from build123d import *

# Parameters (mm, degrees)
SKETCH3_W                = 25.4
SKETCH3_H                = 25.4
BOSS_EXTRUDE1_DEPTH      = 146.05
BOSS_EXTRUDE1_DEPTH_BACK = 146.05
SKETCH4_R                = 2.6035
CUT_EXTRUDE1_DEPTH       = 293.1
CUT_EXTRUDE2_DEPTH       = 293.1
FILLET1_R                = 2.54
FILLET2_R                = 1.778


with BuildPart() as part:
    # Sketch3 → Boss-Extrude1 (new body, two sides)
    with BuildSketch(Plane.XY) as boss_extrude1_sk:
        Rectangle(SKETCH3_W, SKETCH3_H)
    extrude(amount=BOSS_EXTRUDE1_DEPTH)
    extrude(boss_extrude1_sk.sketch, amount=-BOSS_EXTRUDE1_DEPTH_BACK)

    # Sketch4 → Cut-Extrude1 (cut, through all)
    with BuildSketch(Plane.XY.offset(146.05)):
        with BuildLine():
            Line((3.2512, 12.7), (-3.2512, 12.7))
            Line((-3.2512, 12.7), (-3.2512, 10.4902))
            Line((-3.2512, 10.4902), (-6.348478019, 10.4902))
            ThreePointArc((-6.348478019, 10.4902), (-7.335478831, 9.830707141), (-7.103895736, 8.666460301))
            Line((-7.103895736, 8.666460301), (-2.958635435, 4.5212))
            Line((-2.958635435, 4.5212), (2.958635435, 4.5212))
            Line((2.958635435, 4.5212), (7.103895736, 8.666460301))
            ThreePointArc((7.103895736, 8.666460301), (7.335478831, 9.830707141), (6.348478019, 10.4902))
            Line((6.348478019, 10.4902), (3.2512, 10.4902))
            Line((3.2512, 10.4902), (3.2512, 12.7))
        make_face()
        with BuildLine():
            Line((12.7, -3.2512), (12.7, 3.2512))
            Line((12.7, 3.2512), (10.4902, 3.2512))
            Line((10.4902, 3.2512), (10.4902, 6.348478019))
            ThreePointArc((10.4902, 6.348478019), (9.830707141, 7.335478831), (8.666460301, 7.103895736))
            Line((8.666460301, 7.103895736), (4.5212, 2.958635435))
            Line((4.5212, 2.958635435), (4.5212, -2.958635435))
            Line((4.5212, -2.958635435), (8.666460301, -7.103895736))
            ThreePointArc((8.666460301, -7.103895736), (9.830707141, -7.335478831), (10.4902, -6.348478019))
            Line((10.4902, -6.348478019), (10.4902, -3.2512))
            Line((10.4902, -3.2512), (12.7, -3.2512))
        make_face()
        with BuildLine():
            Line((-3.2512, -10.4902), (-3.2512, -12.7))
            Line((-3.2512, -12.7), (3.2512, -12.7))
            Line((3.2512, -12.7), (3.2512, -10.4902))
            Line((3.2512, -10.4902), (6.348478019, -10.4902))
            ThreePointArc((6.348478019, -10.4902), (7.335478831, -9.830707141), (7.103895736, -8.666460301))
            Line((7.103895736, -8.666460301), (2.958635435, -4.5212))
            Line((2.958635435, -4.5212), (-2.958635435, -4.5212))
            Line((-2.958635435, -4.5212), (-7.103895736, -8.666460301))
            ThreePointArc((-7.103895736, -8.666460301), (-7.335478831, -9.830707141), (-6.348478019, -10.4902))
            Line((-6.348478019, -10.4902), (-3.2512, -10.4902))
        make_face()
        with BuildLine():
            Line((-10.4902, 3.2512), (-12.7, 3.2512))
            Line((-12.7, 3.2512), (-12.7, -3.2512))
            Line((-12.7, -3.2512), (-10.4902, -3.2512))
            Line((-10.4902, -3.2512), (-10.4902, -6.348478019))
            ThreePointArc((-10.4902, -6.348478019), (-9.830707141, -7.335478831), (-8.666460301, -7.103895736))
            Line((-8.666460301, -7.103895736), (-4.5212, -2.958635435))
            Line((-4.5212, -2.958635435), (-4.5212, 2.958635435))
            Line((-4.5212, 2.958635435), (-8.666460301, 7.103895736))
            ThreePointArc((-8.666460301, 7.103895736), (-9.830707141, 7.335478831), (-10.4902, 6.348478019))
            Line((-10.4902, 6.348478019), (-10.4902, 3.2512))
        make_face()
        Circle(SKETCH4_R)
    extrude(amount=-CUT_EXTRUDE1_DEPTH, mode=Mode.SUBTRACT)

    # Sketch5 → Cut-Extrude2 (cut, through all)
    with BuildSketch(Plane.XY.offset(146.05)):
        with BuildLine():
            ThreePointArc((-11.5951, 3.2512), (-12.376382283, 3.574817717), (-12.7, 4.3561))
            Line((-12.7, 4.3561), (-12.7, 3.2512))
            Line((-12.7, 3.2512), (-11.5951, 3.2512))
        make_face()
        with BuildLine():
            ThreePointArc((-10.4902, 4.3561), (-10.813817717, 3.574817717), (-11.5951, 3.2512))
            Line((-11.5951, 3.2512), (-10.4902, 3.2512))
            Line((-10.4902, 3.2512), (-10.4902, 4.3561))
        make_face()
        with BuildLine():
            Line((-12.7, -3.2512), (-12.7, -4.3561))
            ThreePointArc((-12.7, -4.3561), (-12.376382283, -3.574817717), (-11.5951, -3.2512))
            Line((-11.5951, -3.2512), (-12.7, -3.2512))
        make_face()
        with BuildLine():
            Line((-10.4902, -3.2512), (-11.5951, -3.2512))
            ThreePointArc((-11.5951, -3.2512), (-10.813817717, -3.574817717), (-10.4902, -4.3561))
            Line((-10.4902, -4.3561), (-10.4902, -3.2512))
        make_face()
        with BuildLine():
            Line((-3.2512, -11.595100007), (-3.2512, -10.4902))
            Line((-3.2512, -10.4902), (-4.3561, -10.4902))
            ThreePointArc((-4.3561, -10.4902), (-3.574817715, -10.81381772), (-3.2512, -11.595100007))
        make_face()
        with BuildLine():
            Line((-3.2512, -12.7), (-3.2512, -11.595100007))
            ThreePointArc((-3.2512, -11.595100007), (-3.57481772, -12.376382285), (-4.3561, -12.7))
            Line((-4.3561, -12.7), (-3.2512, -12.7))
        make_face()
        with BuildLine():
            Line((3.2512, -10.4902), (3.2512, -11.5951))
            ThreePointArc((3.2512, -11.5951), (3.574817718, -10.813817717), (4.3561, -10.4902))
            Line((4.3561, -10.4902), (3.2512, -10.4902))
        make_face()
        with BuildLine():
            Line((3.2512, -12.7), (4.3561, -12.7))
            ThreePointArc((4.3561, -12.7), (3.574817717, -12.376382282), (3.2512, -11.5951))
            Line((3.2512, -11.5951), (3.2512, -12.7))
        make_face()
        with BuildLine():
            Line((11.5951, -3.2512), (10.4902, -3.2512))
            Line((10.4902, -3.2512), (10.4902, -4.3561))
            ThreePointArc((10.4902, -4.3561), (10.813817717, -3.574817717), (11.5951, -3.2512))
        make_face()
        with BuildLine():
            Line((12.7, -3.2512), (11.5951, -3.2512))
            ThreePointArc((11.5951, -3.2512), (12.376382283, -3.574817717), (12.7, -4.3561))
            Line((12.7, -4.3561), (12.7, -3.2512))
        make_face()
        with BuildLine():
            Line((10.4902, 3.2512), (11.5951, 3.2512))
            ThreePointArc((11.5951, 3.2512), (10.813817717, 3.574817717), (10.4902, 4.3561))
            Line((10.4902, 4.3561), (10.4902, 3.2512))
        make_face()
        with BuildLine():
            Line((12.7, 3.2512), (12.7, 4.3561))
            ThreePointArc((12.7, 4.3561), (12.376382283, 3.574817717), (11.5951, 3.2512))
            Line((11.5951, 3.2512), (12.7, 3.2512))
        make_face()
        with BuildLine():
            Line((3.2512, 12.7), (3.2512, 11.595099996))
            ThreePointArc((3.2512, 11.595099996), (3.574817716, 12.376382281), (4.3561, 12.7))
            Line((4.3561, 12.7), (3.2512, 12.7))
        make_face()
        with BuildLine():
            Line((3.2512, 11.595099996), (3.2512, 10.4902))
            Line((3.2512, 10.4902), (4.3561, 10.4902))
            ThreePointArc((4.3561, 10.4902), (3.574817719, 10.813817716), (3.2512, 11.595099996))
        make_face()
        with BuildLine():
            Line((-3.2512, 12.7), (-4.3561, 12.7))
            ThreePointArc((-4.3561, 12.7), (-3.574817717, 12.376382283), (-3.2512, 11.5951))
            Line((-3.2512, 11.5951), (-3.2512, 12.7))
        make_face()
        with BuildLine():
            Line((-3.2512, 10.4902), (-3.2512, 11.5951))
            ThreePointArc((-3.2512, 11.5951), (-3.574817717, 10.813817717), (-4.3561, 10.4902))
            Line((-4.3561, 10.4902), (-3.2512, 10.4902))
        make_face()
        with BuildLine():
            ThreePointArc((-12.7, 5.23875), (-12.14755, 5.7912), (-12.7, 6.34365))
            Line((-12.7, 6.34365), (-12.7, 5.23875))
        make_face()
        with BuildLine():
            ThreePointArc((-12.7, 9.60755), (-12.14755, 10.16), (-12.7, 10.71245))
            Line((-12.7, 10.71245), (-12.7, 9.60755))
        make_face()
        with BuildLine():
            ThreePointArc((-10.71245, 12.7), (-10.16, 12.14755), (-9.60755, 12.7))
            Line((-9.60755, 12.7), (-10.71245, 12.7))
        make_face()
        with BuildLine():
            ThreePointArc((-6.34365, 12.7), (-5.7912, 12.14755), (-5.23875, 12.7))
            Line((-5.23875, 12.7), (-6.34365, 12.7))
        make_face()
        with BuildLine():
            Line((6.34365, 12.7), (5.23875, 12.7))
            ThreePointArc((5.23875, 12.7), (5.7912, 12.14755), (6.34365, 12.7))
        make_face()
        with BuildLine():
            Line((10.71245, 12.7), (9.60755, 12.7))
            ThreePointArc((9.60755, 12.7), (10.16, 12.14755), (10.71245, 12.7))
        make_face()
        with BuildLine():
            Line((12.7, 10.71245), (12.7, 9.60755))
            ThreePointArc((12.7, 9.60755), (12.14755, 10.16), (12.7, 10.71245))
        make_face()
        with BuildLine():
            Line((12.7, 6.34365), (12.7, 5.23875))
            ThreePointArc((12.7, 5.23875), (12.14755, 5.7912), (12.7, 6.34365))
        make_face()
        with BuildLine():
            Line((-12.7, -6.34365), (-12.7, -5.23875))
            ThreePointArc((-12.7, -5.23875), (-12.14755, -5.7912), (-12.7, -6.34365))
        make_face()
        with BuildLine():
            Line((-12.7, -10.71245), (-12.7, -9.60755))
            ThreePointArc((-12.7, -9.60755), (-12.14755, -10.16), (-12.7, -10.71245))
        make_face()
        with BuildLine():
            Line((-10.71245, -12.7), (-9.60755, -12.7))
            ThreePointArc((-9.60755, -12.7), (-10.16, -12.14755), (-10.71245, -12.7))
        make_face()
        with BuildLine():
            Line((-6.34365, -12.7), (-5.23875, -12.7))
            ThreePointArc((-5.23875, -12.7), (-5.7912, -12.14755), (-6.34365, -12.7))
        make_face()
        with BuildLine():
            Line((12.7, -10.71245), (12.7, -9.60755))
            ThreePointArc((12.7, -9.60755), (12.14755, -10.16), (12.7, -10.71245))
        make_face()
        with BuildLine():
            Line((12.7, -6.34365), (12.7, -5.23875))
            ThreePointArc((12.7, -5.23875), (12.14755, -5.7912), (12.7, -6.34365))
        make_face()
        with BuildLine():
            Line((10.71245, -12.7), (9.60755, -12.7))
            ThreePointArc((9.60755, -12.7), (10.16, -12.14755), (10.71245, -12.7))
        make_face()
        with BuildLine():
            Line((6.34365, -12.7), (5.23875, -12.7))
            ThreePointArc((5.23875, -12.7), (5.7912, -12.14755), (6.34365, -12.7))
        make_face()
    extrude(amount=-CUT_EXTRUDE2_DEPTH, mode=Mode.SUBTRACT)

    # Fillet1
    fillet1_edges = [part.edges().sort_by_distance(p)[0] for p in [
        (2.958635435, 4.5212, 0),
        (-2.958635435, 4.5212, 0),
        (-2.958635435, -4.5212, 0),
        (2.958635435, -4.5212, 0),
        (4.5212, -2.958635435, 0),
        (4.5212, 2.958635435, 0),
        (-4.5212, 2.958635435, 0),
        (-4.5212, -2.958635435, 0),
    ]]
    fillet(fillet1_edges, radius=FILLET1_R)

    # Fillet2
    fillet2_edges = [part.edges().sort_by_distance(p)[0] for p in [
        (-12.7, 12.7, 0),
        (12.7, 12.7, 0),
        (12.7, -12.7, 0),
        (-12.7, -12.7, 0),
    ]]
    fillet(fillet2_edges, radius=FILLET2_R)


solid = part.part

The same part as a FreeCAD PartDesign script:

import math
import FreeCAD as App
import Part
import Sketcher

V = App.Vector
Q = App.Units.Quantity


def edges_at(feature, points):
    """Names of the edges that pass closest to the given points."""
    edges = feature.Shape.Edges
    near = lambda p: min(range(len(edges)), key=lambda i: edges[i].distToShape(Part.Vertex(*p))[0])
    return sorted({f"Edge{near(p) + 1}" for p in points})

doc = App.newDocument("Part")
body = doc.addObject("PartDesign::Body", "Body")

# Sketch on XY plane
sketch1 = body.newObject("Sketcher::SketchObject", "Sketch")
sketch1.AttachmentSupport = (doc.getObject("XY_Plane"), [""])
sketch1.MapMode = "FlatFace"
sketch1.addGeometry([
    Part.LineSegment(V(-13, 13, 0), V(-13, -13, 0)),
    Part.LineSegment(V(-13, -13, 0), V(13, -13, 0)),
    Part.LineSegment(V(13, -13, 0), V(13, 13, 0)),
    Part.LineSegment(V(13, 13, 0), V(-13, 13, 0)),
], False)
sketch1.addConstraint([
    Sketcher.Constraint("Coincident", 0, 2, 1, 1),
    Sketcher.Constraint("Coincident", 1, 2, 2, 1),
    Sketcher.Constraint("Coincident", 2, 2, 3, 1),
    Sketcher.Constraint("Coincident", 3, 2, 0, 1),
    Sketcher.Constraint("Vertical", 0),
    Sketcher.Constraint("Horizontal", 1),
    Sketcher.Constraint("Vertical", 2),
    Sketcher.Constraint("Horizontal", 3),
    Sketcher.Constraint("Symmetric", 0, 2, 2, 2, -1, 1),
    Sketcher.Constraint("Equal", 3, 0),
    Sketcher.Constraint("DistanceX", 1, 1, 1, 2, Q("1 in")),
])
pad1 = body.newObject("PartDesign::Pad", "Pad")
pad1.Profile = sketch1
pad1.Type = "TwoLengths"
pad1.Length = Q("5.75 in")
pad1.Length2 = Q("5.75 in")

# Sketch on XY plane
sketch2 = body.newObject("Sketcher::SketchObject", "Sketch001")
sketch2.AttachmentSupport = (doc.getObject("XY_Plane"), [""])
sketch2.MapMode = "FlatFace"
sketch2.AttachmentOffset = App.Placement(V(0, 0, 5.75 * 25.4), App.Rotation())
sketch2.addGeometry([
    Part.LineSegment(V(3.3, 12.7, 0), V(-3.3, 12.7, 0)),  # 0
    Part.LineSegment(V(-3.3, 12.7, 0), V(-3.3, 10.5, 0)),  # 1
    Part.LineSegment(V(-3.3, 10.5, 0), V(-6.3, 10.5, 0)),  # 2
    Part.ArcOfCircle(Part.Circle(V(-6.3, 9.4, 0), V(0, 0, 1), 1.1), math.radians(90), math.radians(225)),  # 3
    Part.LineSegment(V(-7.1, 8.7, 0), V(-3, 4.5, 0)),  # 4
    Part.LineSegment(V(-3, 4.5, 0), V(3, 4.5, 0)),  # 5
    Part.LineSegment(V(3, 4.5, 0), V(7.1, 8.7, 0)),  # 6
    Part.ArcOfCircle(Part.Circle(V(6.3, 9.4, 0), V(0, 0, 1), 1.1), math.radians(-45), math.radians(90)),  # 7
    Part.LineSegment(V(6.3, 10.5, 0), V(3.3, 10.5, 0)),  # 8
    Part.LineSegment(V(3.3, 10.5, 0), V(3.3, 12.7, 0)),  # 9
    Part.LineSegment(V(12.7, -3.3, 0), V(12.7, 3.3, 0)),  # 10
    Part.LineSegment(V(12.7, 3.3, 0), V(10.5, 3.3, 0)),  # 11
    Part.LineSegment(V(10.5, 3.3, 0), V(10.5, 6.3, 0)),  # 12
    Part.ArcOfCircle(Part.Circle(V(9.4, 6.3, 0), V(0, 0, 1), 1.1), math.radians(0), math.radians(135)),  # 13
    Part.LineSegment(V(8.7, 7.1, 0), V(4.5, 3, 0)),  # 14
    Part.LineSegment(V(4.5, 3, 0), V(4.5, -3, 0)),  # 15
    Part.LineSegment(V(4.5, -3, 0), V(8.7, -7.1, 0)),  # 16
    Part.ArcOfCircle(Part.Circle(V(9.4, -6.3, 0), V(0, 0, 1), 1.1), math.radians(-135), math.radians(0)),  # 17
    Part.LineSegment(V(10.5, -6.3, 0), V(10.5, -3.3, 0)),  # 18
    Part.LineSegment(V(10.5, -3.3, 0), V(12.7, -3.3, 0)),  # 19
    Part.LineSegment(V(-3.3, -10.5, 0), V(-3.3, -12.7, 0)),  # 20
    Part.LineSegment(V(-3.3, -12.7, 0), V(3.3, -12.7, 0)),  # 21
    Part.LineSegment(V(3.3, -12.7, 0), V(3.3, -10.5, 0)),  # 22
    Part.LineSegment(V(3.3, -10.5, 0), V(6.3, -10.5, 0)),  # 23
    Part.ArcOfCircle(Part.Circle(V(6.3, -9.4, 0), V(0, 0, 1), 1.1), math.radians(-90), math.radians(45)),  # 24
    Part.LineSegment(V(7.1, -8.7, 0), V(3, -4.5, 0)),  # 25
    Part.LineSegment(V(3, -4.5, 0), V(-3, -4.5, 0)),  # 26
    Part.LineSegment(V(-3, -4.5, 0), V(-7.1, -8.7, 0)),  # 27
    Part.ArcOfCircle(Part.Circle(V(-6.3, -9.4, 0), V(0, 0, 1), 1.1), math.radians(135), math.radians(270)),  # 28
    Part.LineSegment(V(-6.3, -10.5, 0), V(-3.3, -10.5, 0)),  # 29
    Part.LineSegment(V(-10.5, 3.3, 0), V(-12.7, 3.3, 0)),  # 30
    Part.LineSegment(V(-12.7, 3.3, 0), V(-12.7, -3.3, 0)),  # 31
    Part.LineSegment(V(-12.7, -3.3, 0), V(-10.5, -3.3, 0)),  # 32
    Part.LineSegment(V(-10.5, -3.3, 0), V(-10.5, -6.3, 0)),  # 33
    Part.ArcOfCircle(Part.Circle(V(-9.4, -6.3, 0), V(0, 0, 1), 1.1), math.radians(-180), math.radians(-45)),  # 34
    Part.LineSegment(V(-8.7, -7.1, 0), V(-4.5, -3, 0)),  # 35
    Part.LineSegment(V(-4.5, -3, 0), V(-4.5, 3, 0)),  # 36
    Part.LineSegment(V(-4.5, 3, 0), V(-8.7, 7.1, 0)),  # 37
    Part.ArcOfCircle(Part.Circle(V(-9.4, 6.3, 0), V(0, 0, 1), 1.1), math.radians(45), math.radians(180)),  # 38
    Part.LineSegment(V(-10.5, 6.3, 0), V(-10.5, 3.3, 0)),  # 39
    Part.Circle(V(0, 0, 0), V(0, 0, 1), 2.6),  # 40
], False)
sketch2.addConstraint([
    Sketcher.Constraint("Coincident", 0, 2, 1, 1),
    Sketcher.Constraint("Coincident", 1, 2, 2, 1),
    Sketcher.Constraint("Tangent", 2, 2, 3, 1),
    Sketcher.Constraint("Tangent", 3, 2, 4, 1),
    Sketcher.Constraint("Coincident", 4, 2, 5, 1),
    Sketcher.Constraint("Coincident", 5, 2, 6, 1),
    Sketcher.Constraint("Tangent", 6, 2, 7, 1),
    Sketcher.Constraint("Tangent", 7, 2, 8, 1),
    Sketcher.Constraint("Coincident", 8, 2, 9, 1),
    Sketcher.Constraint("Coincident", 9, 2, 0, 1),
    Sketcher.Constraint("Coincident", 10, 2, 11, 1),
    Sketcher.Constraint("Coincident", 11, 2, 12, 1),
    Sketcher.Constraint("Tangent", 12, 2, 13, 1),
    Sketcher.Constraint("Tangent", 13, 2, 14, 1),
    Sketcher.Constraint("Coincident", 14, 2, 15, 1),
    Sketcher.Constraint("Coincident", 15, 2, 16, 1),
    Sketcher.Constraint("Tangent", 16, 2, 17, 1),
    Sketcher.Constraint("Tangent", 17, 2, 18, 1),
    Sketcher.Constraint("Coincident", 18, 2, 19, 1),
    Sketcher.Constraint("Coincident", 19, 2, 10, 1),
    Sketcher.Constraint("Coincident", 20, 2, 21, 1),
    Sketcher.Constraint("Coincident", 21, 2, 22, 1),
    Sketcher.Constraint("Coincident", 22, 2, 23, 1),
    Sketcher.Constraint("Tangent", 23, 2, 24, 1),
    Sketcher.Constraint("Tangent", 24, 2, 25, 1),
    Sketcher.Constraint("Coincident", 25, 2, 26, 1),
    Sketcher.Constraint("Coincident", 26, 2, 27, 1),
    Sketcher.Constraint("Tangent", 27, 2, 28, 1),
    Sketcher.Constraint("Tangent", 28, 2, 29, 1),
    Sketcher.Constraint("Coincident", 29, 2, 20, 1),
    Sketcher.Constraint("Coincident", 30, 2, 31, 1),
    Sketcher.Constraint("Coincident", 31, 2, 32, 1),
    Sketcher.Constraint("Coincident", 32, 2, 33, 1),
    Sketcher.Constraint("Tangent", 33, 2, 34, 1),
    Sketcher.Constraint("Tangent", 34, 2, 35, 1),
    Sketcher.Constraint("Coincident", 35, 2, 36, 1),
    Sketcher.Constraint("Coincident", 36, 2, 37, 1),
    Sketcher.Constraint("Tangent", 37, 2, 38, 1),
    Sketcher.Constraint("Tangent", 38, 2, 39, 1),
    Sketcher.Constraint("Coincident", 39, 2, 30, 1),
    Sketcher.Constraint("Horizontal", 0),
    Sketcher.Constraint("Vertical", 1),
    Sketcher.Constraint("Horizontal", 2),
    Sketcher.Constraint("Horizontal", 5),
    Sketcher.Constraint("Horizontal", 8),
    Sketcher.Constraint("Vertical", 9),
    Sketcher.Constraint("Vertical", 10),
    Sketcher.Constraint("Horizontal", 11),
    Sketcher.Constraint("Vertical", 12),
    Sketcher.Constraint("Vertical", 15),
    Sketcher.Constraint("Vertical", 18),
    Sketcher.Constraint("Horizontal", 19),
    Sketcher.Constraint("Vertical", 20),
    Sketcher.Constraint("Horizontal", 21),
    Sketcher.Constraint("Vertical", 22),
    Sketcher.Constraint("Horizontal", 23),
    Sketcher.Constraint("Horizontal", 26),
    Sketcher.Constraint("Horizontal", 29),
    Sketcher.Constraint("Horizontal", 30),
    Sketcher.Constraint("Vertical", 31),
    Sketcher.Constraint("Horizontal", 32),
    Sketcher.Constraint("Vertical", 33),
    Sketcher.Constraint("Vertical", 36),
    Sketcher.Constraint("Vertical", 39),
    Sketcher.Constraint("Coincident", 40, 3, -1, 1),
    Sketcher.Constraint("Equal", 3, 7),
    Sketcher.Constraint("Equal", 7, 13),
    Sketcher.Constraint("Equal", 13, 17),
    Sketcher.Constraint("Equal", 17, 24),
    Sketcher.Constraint("Equal", 24, 28),
    Sketcher.Constraint("Equal", 28, 34),
    Sketcher.Constraint("Equal", 34, 38),
    Sketcher.Constraint("Symmetric", 3, 3, 24, 3, -1, 1),
    Sketcher.Constraint("Symmetric", 7, 3, 28, 3, -1, 1),
    Sketcher.Constraint("Symmetric", 13, 3, 34, 3, -1, 1),
    Sketcher.Constraint("Symmetric", 17, 3, 38, 3, -1, 1),
    Sketcher.Constraint("Symmetric", 9, 2, 20, 2, -1, 1),
    Sketcher.Constraint("Symmetric", 4, 2, 25, 2, -1, 1),
    Sketcher.Constraint("Symmetric", 19, 2, 30, 2, -1, 1),
    Sketcher.Constraint("Symmetric", 14, 2, 35, 2, -1, 1),
    Sketcher.Constraint("Symmetric", 3, 3, 7, 3, -2),
    Sketcher.Constraint("Symmetric", 17, 3, 34, 3, -2),
    Sketcher.Constraint("Perpendicular", 4, 6),
    Sketcher.Constraint("Parallel", 6, 14),
    Sketcher.Constraint("Perpendicular", 14, 16),
    Sketcher.Constraint("Perpendicular", 25, 27),
    Sketcher.Constraint("Perpendicular", 35, 37),
    Sketcher.Constraint("Horizontal", 3, 2, 6, 2),
    Sketcher.Constraint("Horizontal", 11, 2, 30, 2),
    Sketcher.Constraint("Horizontal", 19, 2, 31, 2),
    Sketcher.Constraint("Vertical", 1, 2, 20, 2),
    Sketcher.Constraint("Vertical", 9, 2, 21, 2),
    Sketcher.Constraint("Equal", 32, 1),
    Sketcher.Constraint("Equal", 21, 10),
    Sketcher.Constraint("Equal", 29, 12),
    Sketcher.Constraint("Equal", 26, 15),
    Sketcher.Constraint("Diameter", 40, Q("0.205 in")),
    Sketcher.Constraint("DistanceY", -1, 1, 0, 2, Q("0.5 in")),
    Sketcher.Constraint("DistanceX", -1, 1, 10, 2, Q("0.5 in")),
    Sketcher.Constraint("DistanceX", 0, 2, 0, 1, Q("0.256 in")),
    Sketcher.Constraint("DistanceX", 11, 2, 11, 1, Q("0.087 in")),
    Sketcher.Constraint("DistanceY", 10, 2, 5, 2, Q("0.05 in")),
    Sketcher.Constraint("Radius", 3, Q("1.068322 mm")),
    Sketcher.Constraint("DistanceX", 7, 3, 13, 3, Q("0.121 in")),
])
pocket1 = body.newObject("PartDesign::Pocket", "Pocket")
pocket1.Profile = sketch2
pocket1.Type = "ThroughAll"

# Sketch on XY plane
sketch3 = body.newObject("Sketcher::SketchObject", "Sketch002")
sketch3.AttachmentSupport = (doc.getObject("XY_Plane"), [""])
sketch3.MapMode = "FlatFace"
sketch3.AttachmentOffset = App.Placement(V(0, 0, 5.75 * 25.4), App.Rotation())
sketch3.addGeometry([
    Part.ArcOfCircle(Part.Circle(V(-11.6, 4.4, 0), V(0, 0, 1), 1.1), math.radians(180), math.radians(270)),  # 0
    Part.LineSegment(V(-12.7, 4.4, 0), V(-12.7, 3.3, 0)),  # 1
    Part.LineSegment(V(-12.7, 3.3, 0), V(-11.6, 3.3, 0)),  # 2
    Part.ArcOfCircle(Part.Circle(V(-11.6, 4.4, 0), V(0, 0, 1), 1.1), math.radians(-90), math.radians(0)),  # 3
    Part.LineSegment(V(-11.6, 3.3, 0), V(-10.5, 3.3, 0)),  # 4
    Part.LineSegment(V(-10.5, 3.3, 0), V(-10.5, 4.4, 0)),  # 5
    Part.LineSegment(V(-12.7, -3.3, 0), V(-12.7, -4.4, 0)),  # 6
    Part.ArcOfCircle(Part.Circle(V(-11.6, -4.4, 0), V(0, 0, 1), 1.1), math.radians(90), math.radians(180)),  # 7
    Part.LineSegment(V(-11.6, -3.3, 0), V(-12.7, -3.3, 0)),  # 8
    Part.LineSegment(V(-10.5, -3.3, 0), V(-11.6, -3.3, 0)),  # 9
    Part.ArcOfCircle(Part.Circle(V(-11.6, -4.4, 0), V(0, 0, 1), 1.1), math.radians(0), math.radians(90)),  # 10
    Part.LineSegment(V(-10.5, -4.4, 0), V(-10.5, -3.3, 0)),  # 11
    Part.LineSegment(V(-3.3, -11.6, 0), V(-3.3, -10.5, 0)),  # 12
    Part.LineSegment(V(-3.3, -10.5, 0), V(-4.4, -10.5, 0)),  # 13
    Part.ArcOfCircle(Part.Circle(V(-4.4, -11.6, 0), V(0, 0, 1), 1.1), math.radians(0), math.radians(90)),  # 14
    Part.LineSegment(V(-3.3, -12.7, 0), V(-3.3, -11.6, 0)),  # 15
    Part.ArcOfCircle(Part.Circle(V(-4.4, -11.6, 0), V(0, 0, 1), 1.1), math.radians(-90), math.radians(0)),  # 16
    Part.LineSegment(V(-4.4, -12.7, 0), V(-3.3, -12.7, 0)),  # 17
    Part.LineSegment(V(3.3, -10.5, 0), V(3.3, -11.6, 0)),  # 18
    Part.ArcOfCircle(Part.Circle(V(4.4, -11.6, 0), V(0, 0, 1), 1.1), math.radians(90), math.radians(180)),  # 19
    Part.LineSegment(V(4.4, -10.5, 0), V(3.3, -10.5, 0)),  # 20
    Part.LineSegment(V(3.3, -12.7, 0), V(4.4, -12.7, 0)),  # 21
    Part.ArcOfCircle(Part.Circle(V(4.4, -11.6, 0), V(0, 0, 1), 1.1), math.radians(180), math.radians(270)),  # 22
    Part.LineSegment(V(3.3, -11.6, 0), V(3.3, -12.7, 0)),  # 23
    Part.LineSegment(V(11.6, -3.3, 0), V(10.5, -3.3, 0)),  # 24
    Part.LineSegment(V(10.5, -3.3, 0), V(10.5, -4.4, 0)),  # 25
    Part.ArcOfCircle(Part.Circle(V(11.6, -4.4, 0), V(0, 0, 1), 1.1), math.radians(90), math.radians(180)),  # 26
    Part.LineSegment(V(12.7, -3.3, 0), V(11.6, -3.3, 0)),  # 27
    Part.ArcOfCircle(Part.Circle(V(11.6, -4.4, 0), V(0, 0, 1), 1.1), math.radians(0), math.radians(90)),  # 28
    Part.LineSegment(V(12.7, -4.4, 0), V(12.7, -3.3, 0)),  # 29
    Part.LineSegment(V(10.5, 3.3, 0), V(11.6, 3.3, 0)),  # 30
    Part.ArcOfCircle(Part.Circle(V(11.6, 4.4, 0), V(0, 0, 1), 1.1), math.radians(180), math.radians(270)),  # 31
    Part.LineSegment(V(10.5, 4.4, 0), V(10.5, 3.3, 0)),  # 32
    Part.LineSegment(V(12.7, 3.3, 0), V(12.7, 4.4, 0)),  # 33
    Part.ArcOfCircle(Part.Circle(V(11.6, 4.4, 0), V(0, 0, 1), 1.1), math.radians(-90), math.radians(0)),  # 34
    Part.LineSegment(V(11.6, 3.3, 0), V(12.7, 3.3, 0)),  # 35
    Part.LineSegment(V(3.3, 12.7, 0), V(3.3, 11.6, 0)),  # 36
    Part.ArcOfCircle(Part.Circle(V(4.4, 11.6, 0), V(0, 0, 1), 1.1), math.radians(90), math.radians(180)),  # 37
    Part.LineSegment(V(4.4, 12.7, 0), V(3.3, 12.7, 0)),  # 38
    Part.LineSegment(V(3.3, 11.6, 0), V(3.3, 10.5, 0)),  # 39
    Part.LineSegment(V(3.3, 10.5, 0), V(4.4, 10.5, 0)),  # 40
    Part.ArcOfCircle(Part.Circle(V(4.4, 11.6, 0), V(0, 0, 1), 1.1), math.radians(-180), math.radians(-90)),  # 41
    Part.LineSegment(V(-3.3, 12.7, 0), V(-4.4, 12.7, 0)),  # 42
    Part.ArcOfCircle(Part.Circle(V(-4.4, 11.6, 0), V(0, 0, 1), 1.1), math.radians(0), math.radians(90)),  # 43
    Part.LineSegment(V(-3.3, 11.6, 0), V(-3.3, 12.7, 0)),  # 44
    Part.LineSegment(V(-3.3, 10.5, 0), V(-3.3, 11.6, 0)),  # 45
    Part.ArcOfCircle(Part.Circle(V(-4.4, 11.6, 0), V(0, 0, 1), 1.1), math.radians(-90), math.radians(0)),  # 46
    Part.LineSegment(V(-4.4, 10.5, 0), V(-3.3, 10.5, 0)),  # 47
    Part.ArcOfCircle(Part.Circle(V(-12.7, 5.8, 0), V(0, 0, 1), 0.6), math.radians(-90), math.radians(90)),  # 48
    Part.LineSegment(V(-12.7, 6.3, 0), V(-12.7, 5.2, 0)),  # 49
    Part.ArcOfCircle(Part.Circle(V(-12.7, 10.2, 0), V(0, 0, 1), 0.6), math.radians(-90), math.radians(90)),  # 50
    Part.LineSegment(V(-12.7, 10.7, 0), V(-12.7, 9.6, 0)),  # 51
    Part.ArcOfCircle(Part.Circle(V(-10.2, 12.7, 0), V(0, 0, 1), 0.6), math.radians(180), math.radians(360)),  # 52
    Part.LineSegment(V(-9.6, 12.7, 0), V(-10.7, 12.7, 0)),  # 53
    Part.ArcOfCircle(Part.Circle(V(-5.8, 12.7, 0), V(0, 0, 1), 0.6), math.radians(180), math.radians(360)),  # 54
    Part.LineSegment(V(-5.2, 12.7, 0), V(-6.3, 12.7, 0)),  # 55
    Part.LineSegment(V(6.3, 12.7, 0), V(5.2, 12.7, 0)),  # 56
    Part.ArcOfCircle(Part.Circle(V(5.8, 12.7, 0), V(0, 0, 1), 0.6), math.radians(180), math.radians(360)),  # 57
    Part.LineSegment(V(10.7, 12.7, 0), V(9.6, 12.7, 0)),  # 58
    Part.ArcOfCircle(Part.Circle(V(10.2, 12.7, 0), V(0, 0, 1), 0.6), math.radians(180), math.radians(360)),  # 59
    Part.LineSegment(V(12.7, 9.6, 0), V(12.7, 10.7, 0)),  # 60
    Part.ArcOfCircle(Part.Circle(V(12.7, 10.2, 0), V(0, 0, 1), 0.6), math.radians(90), math.radians(270)),  # 61
    Part.LineSegment(V(12.7, 5.2, 0), V(12.7, 6.3, 0)),  # 62
    Part.ArcOfCircle(Part.Circle(V(12.7, 5.8, 0), V(0, 0, 1), 0.6), math.radians(90), math.radians(270)),  # 63
    Part.LineSegment(V(-12.7, -5.2, 0), V(-12.7, -6.3, 0)),  # 64
    Part.ArcOfCircle(Part.Circle(V(-12.7, -5.8, 0), V(0, 0, 1), 0.6), math.radians(-90), math.radians(90)),  # 65
    Part.LineSegment(V(-12.7, -9.6, 0), V(-12.7, -10.7, 0)),  # 66
    Part.ArcOfCircle(Part.Circle(V(-12.7, -10.2, 0), V(0, 0, 1), 0.6), math.radians(-90), math.radians(90)),  # 67
    Part.LineSegment(V(-10.7, -12.7, 0), V(-9.6, -12.7, 0)),  # 68
    Part.ArcOfCircle(Part.Circle(V(-10.2, -12.7, 0), V(0, 0, 1), 0.6), math.radians(0), math.radians(180)),  # 69
    Part.LineSegment(V(-6.3, -12.7, 0), V(-5.2, -12.7, 0)),  # 70
    Part.ArcOfCircle(Part.Circle(V(-5.8, -12.7, 0), V(0, 0, 1), 0.6), math.radians(0), math.radians(180)),  # 71
    Part.LineSegment(V(12.7, -10.7, 0), V(12.7, -9.6, 0)),  # 72
    Part.ArcOfCircle(Part.Circle(V(12.7, -10.2, 0), V(0, 0, 1), 0.6), math.radians(90), math.radians(270)),  # 73
    Part.LineSegment(V(12.7, -6.3, 0), V(12.7, -5.2, 0)),  # 74
    Part.ArcOfCircle(Part.Circle(V(12.7, -5.8, 0), V(0, 0, 1), 0.6), math.radians(90), math.radians(270)),  # 75
    Part.LineSegment(V(9.6, -12.7, 0), V(10.7, -12.7, 0)),  # 76
    Part.ArcOfCircle(Part.Circle(V(10.2, -12.7, 0), V(0, 0, 1), 0.6), math.radians(0), math.radians(180)),  # 77
    Part.LineSegment(V(5.2, -12.7, 0), V(6.3, -12.7, 0)),  # 78
    Part.ArcOfCircle(Part.Circle(V(5.8, -12.7, 0), V(0, 0, 1), 0.6), math.radians(0), math.radians(180)),  # 79
], False)
sketch3.addConstraint([
    Sketcher.Constraint("Tangent", 0, 1, 1, 1),
    Sketcher.Constraint("Coincident", 1, 2, 2, 1),
    Sketcher.Constraint("Tangent", 2, 2, 0, 2),
    Sketcher.Constraint("Tangent", 3, 1, 4, 1),
    Sketcher.Constraint("Coincident", 4, 2, 5, 1),
    Sketcher.Constraint("Tangent", 5, 2, 3, 2),
    Sketcher.Constraint("Tangent", 6, 2, 7, 2),
    Sketcher.Constraint("Tangent", 7, 1, 8, 1),
    Sketcher.Constraint("Coincident", 8, 2, 6, 1),
    Sketcher.Constraint("Tangent", 9, 2, 10, 2),
    Sketcher.Constraint("Tangent", 10, 1, 11, 1),
    Sketcher.Constraint("Coincident", 11, 2, 9, 1),
    Sketcher.Constraint("Coincident", 12, 2, 13, 1),
    Sketcher.Constraint("Tangent", 13, 2, 14, 2),
    Sketcher.Constraint("Tangent", 14, 1, 12, 1),
    Sketcher.Constraint("Tangent", 15, 2, 16, 2),
    Sketcher.Constraint("Tangent", 16, 1, 17, 1),
    Sketcher.Constraint("Coincident", 17, 2, 15, 1),
    Sketcher.Constraint("Tangent", 18, 2, 19, 2),
    Sketcher.Constraint("Tangent", 19, 1, 20, 1),
    Sketcher.Constraint("Coincident", 20, 2, 18, 1),
    Sketcher.Constraint("Tangent", 21, 2, 22, 2),
    Sketcher.Constraint("Tangent", 22, 1, 23, 1),
    Sketcher.Constraint("Coincident", 23, 2, 21, 1),
    Sketcher.Constraint("Coincident", 24, 2, 25, 1),
    Sketcher.Constraint("Tangent", 25, 2, 26, 2),
    Sketcher.Constraint("Tangent", 26, 1, 24, 1),
    Sketcher.Constraint("Tangent", 27, 2, 28, 2),
    Sketcher.Constraint("Tangent", 28, 1, 29, 1),
    Sketcher.Constraint("Coincident", 29, 2, 27, 1),
    Sketcher.Constraint("Tangent", 30, 2, 31, 2),
    Sketcher.Constraint("Tangent", 31, 1, 32, 1),
    Sketcher.Constraint("Coincident", 32, 2, 30, 1),
    Sketcher.Constraint("Tangent", 33, 2, 34, 2),
    Sketcher.Constraint("Tangent", 34, 1, 35, 1),
    Sketcher.Constraint("Coincident", 35, 2, 33, 1),
    Sketcher.Constraint("Tangent", 36, 2, 37, 2),
    Sketcher.Constraint("Tangent", 37, 1, 38, 1),
    Sketcher.Constraint("Coincident", 38, 2, 36, 1),
    Sketcher.Constraint("Coincident", 39, 2, 40, 1),
    Sketcher.Constraint("Tangent", 40, 2, 41, 2),
    Sketcher.Constraint("Tangent", 41, 1, 39, 1),
    Sketcher.Constraint("Tangent", 42, 2, 43, 2),
    Sketcher.Constraint("Tangent", 43, 1, 44, 1),
    Sketcher.Constraint("Coincident", 44, 2, 42, 1),
    Sketcher.Constraint("Tangent", 45, 2, 46, 2),
    Sketcher.Constraint("Tangent", 46, 1, 47, 1),
    Sketcher.Constraint("Coincident", 47, 2, 45, 1),
    Sketcher.Constraint("Coincident", 48, 1, 49, 2),
    Sketcher.Constraint("Coincident", 49, 1, 48, 2),
    Sketcher.Constraint("Coincident", 50, 1, 51, 2),
    Sketcher.Constraint("Coincident", 51, 1, 50, 2),
    Sketcher.Constraint("Coincident", 52, 1, 53, 2),
    Sketcher.Constraint("Coincident", 53, 1, 52, 2),
    Sketcher.Constraint("Coincident", 54, 1, 55, 2),
    Sketcher.Constraint("Coincident", 55, 1, 54, 2),
    Sketcher.Constraint("Coincident", 56, 1, 57, 2),
    Sketcher.Constraint("Coincident", 57, 1, 56, 2),
    Sketcher.Constraint("Coincident", 58, 1, 59, 2),
    Sketcher.Constraint("Coincident", 59, 1, 58, 2),
    Sketcher.Constraint("Coincident", 60, 1, 61, 2),
    Sketcher.Constraint("Coincident", 61, 1, 60, 2),
    Sketcher.Constraint("Coincident", 62, 1, 63, 2),
    Sketcher.Constraint("Coincident", 63, 1, 62, 2),
    Sketcher.Constraint("Coincident", 64, 1, 65, 2),
    Sketcher.Constraint("Coincident", 65, 1, 64, 2),
    Sketcher.Constraint("Coincident", 66, 1, 67, 2),
    Sketcher.Constraint("Coincident", 67, 1, 66, 2),
    Sketcher.Constraint("Coincident", 68, 1, 69, 2),
    Sketcher.Constraint("Coincident", 69, 1, 68, 2),
    Sketcher.Constraint("Coincident", 70, 1, 71, 2),
    Sketcher.Constraint("Coincident", 71, 1, 70, 2),
    Sketcher.Constraint("Coincident", 72, 1, 73, 2),
    Sketcher.Constraint("Coincident", 73, 1, 72, 2),
    Sketcher.Constraint("Coincident", 74, 1, 75, 2),
    Sketcher.Constraint("Coincident", 75, 1, 74, 2),
    Sketcher.Constraint("Coincident", 76, 1, 77, 2),
    Sketcher.Constraint("Coincident", 77, 1, 76, 2),
    Sketcher.Constraint("Coincident", 78, 1, 79, 2),
    Sketcher.Constraint("Coincident", 79, 1, 78, 2),
    Sketcher.Constraint("Vertical", 1),
    Sketcher.Constraint("Horizontal", 2),
    Sketcher.Constraint("Horizontal", 4),
    Sketcher.Constraint("Vertical", 5),
    Sketcher.Constraint("Vertical", 6),
    Sketcher.Constraint("Horizontal", 8),
    Sketcher.Constraint("Horizontal", 9),
    Sketcher.Constraint("Vertical", 11),
    Sketcher.Constraint("Vertical", 12),
    Sketcher.Constraint("Horizontal", 13),
    Sketcher.Constraint("Vertical", 15),
    Sketcher.Constraint("Horizontal", 17),
    Sketcher.Constraint("Vertical", 18),
    Sketcher.Constraint("Horizontal", 20),
    Sketcher.Constraint("Horizontal", 21),
    Sketcher.Constraint("Vertical", 23),
    Sketcher.Constraint("Horizontal", 24),
    Sketcher.Constraint("Vertical", 25),
    Sketcher.Constraint("Horizontal", 27),
    Sketcher.Constraint("Vertical", 29),
    Sketcher.Constraint("Horizontal", 30),
    Sketcher.Constraint("Vertical", 32),
    Sketcher.Constraint("Vertical", 33),
    Sketcher.Constraint("Horizontal", 35),
    Sketcher.Constraint("Vertical", 36),
    Sketcher.Constraint("Horizontal", 38),
    Sketcher.Constraint("Vertical", 39),
    Sketcher.Constraint("Horizontal", 40),
    Sketcher.Constraint("Horizontal", 42),
    Sketcher.Constraint("Vertical", 44),
    Sketcher.Constraint("Vertical", 45),
    Sketcher.Constraint("Horizontal", 47),
    Sketcher.Constraint("Vertical", 49),
    Sketcher.Constraint("Vertical", 51),
    Sketcher.Constraint("Horizontal", 53),
    Sketcher.Constraint("Horizontal", 55),
    Sketcher.Constraint("Horizontal", 56),
    Sketcher.Constraint("Horizontal", 58),
    Sketcher.Constraint("Vertical", 60),
    Sketcher.Constraint("Vertical", 62),
    Sketcher.Constraint("Vertical", 64),
    Sketcher.Constraint("Vertical", 66),
    Sketcher.Constraint("Horizontal", 68),
    Sketcher.Constraint("Horizontal", 70),
    Sketcher.Constraint("Vertical", 72),
    Sketcher.Constraint("Vertical", 74),
    Sketcher.Constraint("Horizontal", 76),
    Sketcher.Constraint("Horizontal", 78),
    Sketcher.Constraint("Coincident", 3, 3, 0, 3),
    Sketcher.Constraint("Coincident", 10, 3, 7, 3),
    Sketcher.Constraint("Coincident", 16, 3, 14, 3),
    Sketcher.Constraint("Coincident", 22, 3, 19, 3),
    Sketcher.Constraint("Coincident", 28, 3, 26, 3),
    Sketcher.Constraint("Coincident", 34, 3, 31, 3),
    Sketcher.Constraint("Coincident", 41, 3, 37, 3),
    Sketcher.Constraint("Coincident", 46, 3, 43, 3),
    Sketcher.Constraint("Equal", 0, 3),
    Sketcher.Constraint("Equal", 3, 7),
    Sketcher.Constraint("Equal", 7, 10),
    Sketcher.Constraint("Equal", 10, 14),
    Sketcher.Constraint("Equal", 14, 16),
    Sketcher.Constraint("Equal", 16, 19),
    Sketcher.Constraint("Equal", 19, 22),
    Sketcher.Constraint("Equal", 22, 26),
    Sketcher.Constraint("Equal", 26, 28),
    Sketcher.Constraint("Equal", 28, 31),
    Sketcher.Constraint("Equal", 31, 34),
    Sketcher.Constraint("Equal", 34, 37),
    Sketcher.Constraint("Equal", 37, 41),
    Sketcher.Constraint("Equal", 41, 43),
    Sketcher.Constraint("Equal", 43, 46),
    Sketcher.Constraint("Equal", 48, 50),
    Sketcher.Constraint("Equal", 50, 52),
    Sketcher.Constraint("Equal", 52, 54),
    Sketcher.Constraint("Equal", 54, 57),
    Sketcher.Constraint("Equal", 57, 59),
    Sketcher.Constraint("Equal", 59, 61),
    Sketcher.Constraint("Equal", 61, 63),
    Sketcher.Constraint("Equal", 63, 65),
    Sketcher.Constraint("Equal", 65, 67),
    Sketcher.Constraint("Equal", 67, 69),
    Sketcher.Constraint("Equal", 69, 71),
    Sketcher.Constraint("Equal", 71, 73),
    Sketcher.Constraint("Equal", 73, 75),
    Sketcher.Constraint("Equal", 75, 77),
    Sketcher.Constraint("Equal", 77, 79),
    Sketcher.Constraint("Symmetric", 0, 3, 26, 3, -1, 1),
    Sketcher.Constraint("Symmetric", 7, 3, 31, 3, -1, 1),
    Sketcher.Constraint("Symmetric", 14, 3, 37, 3, -1, 1),
    Sketcher.Constraint("Symmetric", 19, 3, 43, 3, -1, 1),
    Sketcher.Constraint("Symmetric", 63, 3, 65, 3, -1, 1),
    Sketcher.Constraint("Symmetric", 61, 3, 67, 3, -1, 1),
    Sketcher.Constraint("Symmetric", 59, 3, 69, 3, -1, 1),
    Sketcher.Constraint("Symmetric", 57, 3, 71, 3, -1, 1),
    Sketcher.Constraint("Symmetric", 50, 3, 73, 3, -1, 1),
    Sketcher.Constraint("Symmetric", 48, 3, 75, 3, -1, 1),
    Sketcher.Constraint("Symmetric", 52, 3, 77, 3, -1, 1),
    Sketcher.Constraint("Symmetric", 54, 3, 79, 3, -1, 1),
    Sketcher.Constraint("Symmetric", 14, 3, 19, 3, -2),
    Sketcher.Constraint("Symmetric", 7, 3, 26, 3, -2),
    Sketcher.Constraint("Symmetric", 54, 3, 57, 3, -2),
    Sketcher.Constraint("Symmetric", 52, 3, 59, 3, -2),
    Sketcher.Constraint("Symmetric", 50, 3, 61, 3, -2),
    Sketcher.Constraint("Symmetric", 48, 3, 63, 3, -2),
    Sketcher.Constraint("Horizontal", 52, 3, 54, 3),
    Sketcher.Constraint("Horizontal", 79, 3, 16, 1),
    Sketcher.Constraint("Horizontal", 44, 2, 52, 1),
    Sketcher.Constraint("Horizontal", 53, 1, 54, 1),
    Sketcher.Constraint("Horizontal", 55, 1, 56, 1),
    Sketcher.Constraint("Horizontal", 57, 1, 58, 1),
    Sketcher.Constraint("Horizontal", 23, 2, 68, 1),
    Sketcher.Constraint("Horizontal", 69, 1, 70, 1),
    Sketcher.Constraint("Horizontal", 71, 1, 76, 1),
    Sketcher.Constraint("Horizontal", 77, 1, 78, 1),
    Sketcher.Constraint("Vertical", 48, 3, 50, 3),
    Sketcher.Constraint("Vertical", 67, 3, 0, 1),
    Sketcher.Constraint("Vertical", 8, 2, 48, 1),
    Sketcher.Constraint("Vertical", 49, 1, 50, 1),
    Sketcher.Constraint("Vertical", 35, 2, 60, 1),
    Sketcher.Constraint("Vertical", 61, 1, 62, 1),
    Sketcher.Constraint("Vertical", 51, 1, 64, 1),
    Sketcher.Constraint("Vertical", 65, 1, 66, 1),
    Sketcher.Constraint("Vertical", 63, 1, 72, 1),
    Sketcher.Constraint("Vertical", 73, 1, 74, 1),
    Sketcher.Constraint("Equal", 47, 53),
    Sketcher.Constraint("DistanceX", 48, 3, -1, 1, Q("0.5 in")),
    Sketcher.Constraint("DistanceY", -1, 1, 50, 3, Q("0.4 in")),
    Sketcher.Constraint("DistanceX", 52, 3, -1, 1, Q("0.4 in")),
    Sketcher.Constraint("DistanceY", -1, 1, 52, 3, Q("0.5 in")),
    Sketcher.Constraint("Radius", 0, Q("0.0435 in")),
    Sketcher.Constraint("DistanceY", -1, 1, 48, 3, Q("0.228 in")),
    Sketcher.Constraint("DistanceX", 54, 3, -1, 1, Q("0.228 in")),
    Sketcher.Constraint("DistanceY", -1, 1, 1, 2, Q("0.128 in")),
    Sketcher.Constraint("DistanceX", 12, 2, -1, 1, Q("0.128 in")),
])
pocket2 = body.newObject("PartDesign::Pocket", "Pocket001")
pocket2.Profile = sketch3
pocket2.Type = "ThroughAll"
doc.recompute()

fillet = body.newObject("PartDesign::Fillet", "Fillet")
fillet.Base = (pocket2, edges_at(pocket2, [
    (2.959, 4.521, 0),
    (-2.959, 4.521, 0),
    (-2.959, -4.521, 0),
    (2.959, -4.521, 0),
    (4.521, -2.959, 0),
    (4.521, 2.959, 0),
    (-4.521, 2.959, 0),
    (-4.521, -2.959, 0),
]))
fillet.Radius = Q("0.1 in")
doc.recompute()

fillet2 = body.newObject("PartDesign::Fillet", "Fillet001")
fillet2.Base = (fillet, edges_at(fillet, [
    (-12.7, 12.7, 0),
    (12.7, 12.7, 0),
    (12.7, -12.7, 0),
    (-12.7, -12.7, 0),
]))
fillet2.Radius = Q("0.07 in")

doc.recompute()
